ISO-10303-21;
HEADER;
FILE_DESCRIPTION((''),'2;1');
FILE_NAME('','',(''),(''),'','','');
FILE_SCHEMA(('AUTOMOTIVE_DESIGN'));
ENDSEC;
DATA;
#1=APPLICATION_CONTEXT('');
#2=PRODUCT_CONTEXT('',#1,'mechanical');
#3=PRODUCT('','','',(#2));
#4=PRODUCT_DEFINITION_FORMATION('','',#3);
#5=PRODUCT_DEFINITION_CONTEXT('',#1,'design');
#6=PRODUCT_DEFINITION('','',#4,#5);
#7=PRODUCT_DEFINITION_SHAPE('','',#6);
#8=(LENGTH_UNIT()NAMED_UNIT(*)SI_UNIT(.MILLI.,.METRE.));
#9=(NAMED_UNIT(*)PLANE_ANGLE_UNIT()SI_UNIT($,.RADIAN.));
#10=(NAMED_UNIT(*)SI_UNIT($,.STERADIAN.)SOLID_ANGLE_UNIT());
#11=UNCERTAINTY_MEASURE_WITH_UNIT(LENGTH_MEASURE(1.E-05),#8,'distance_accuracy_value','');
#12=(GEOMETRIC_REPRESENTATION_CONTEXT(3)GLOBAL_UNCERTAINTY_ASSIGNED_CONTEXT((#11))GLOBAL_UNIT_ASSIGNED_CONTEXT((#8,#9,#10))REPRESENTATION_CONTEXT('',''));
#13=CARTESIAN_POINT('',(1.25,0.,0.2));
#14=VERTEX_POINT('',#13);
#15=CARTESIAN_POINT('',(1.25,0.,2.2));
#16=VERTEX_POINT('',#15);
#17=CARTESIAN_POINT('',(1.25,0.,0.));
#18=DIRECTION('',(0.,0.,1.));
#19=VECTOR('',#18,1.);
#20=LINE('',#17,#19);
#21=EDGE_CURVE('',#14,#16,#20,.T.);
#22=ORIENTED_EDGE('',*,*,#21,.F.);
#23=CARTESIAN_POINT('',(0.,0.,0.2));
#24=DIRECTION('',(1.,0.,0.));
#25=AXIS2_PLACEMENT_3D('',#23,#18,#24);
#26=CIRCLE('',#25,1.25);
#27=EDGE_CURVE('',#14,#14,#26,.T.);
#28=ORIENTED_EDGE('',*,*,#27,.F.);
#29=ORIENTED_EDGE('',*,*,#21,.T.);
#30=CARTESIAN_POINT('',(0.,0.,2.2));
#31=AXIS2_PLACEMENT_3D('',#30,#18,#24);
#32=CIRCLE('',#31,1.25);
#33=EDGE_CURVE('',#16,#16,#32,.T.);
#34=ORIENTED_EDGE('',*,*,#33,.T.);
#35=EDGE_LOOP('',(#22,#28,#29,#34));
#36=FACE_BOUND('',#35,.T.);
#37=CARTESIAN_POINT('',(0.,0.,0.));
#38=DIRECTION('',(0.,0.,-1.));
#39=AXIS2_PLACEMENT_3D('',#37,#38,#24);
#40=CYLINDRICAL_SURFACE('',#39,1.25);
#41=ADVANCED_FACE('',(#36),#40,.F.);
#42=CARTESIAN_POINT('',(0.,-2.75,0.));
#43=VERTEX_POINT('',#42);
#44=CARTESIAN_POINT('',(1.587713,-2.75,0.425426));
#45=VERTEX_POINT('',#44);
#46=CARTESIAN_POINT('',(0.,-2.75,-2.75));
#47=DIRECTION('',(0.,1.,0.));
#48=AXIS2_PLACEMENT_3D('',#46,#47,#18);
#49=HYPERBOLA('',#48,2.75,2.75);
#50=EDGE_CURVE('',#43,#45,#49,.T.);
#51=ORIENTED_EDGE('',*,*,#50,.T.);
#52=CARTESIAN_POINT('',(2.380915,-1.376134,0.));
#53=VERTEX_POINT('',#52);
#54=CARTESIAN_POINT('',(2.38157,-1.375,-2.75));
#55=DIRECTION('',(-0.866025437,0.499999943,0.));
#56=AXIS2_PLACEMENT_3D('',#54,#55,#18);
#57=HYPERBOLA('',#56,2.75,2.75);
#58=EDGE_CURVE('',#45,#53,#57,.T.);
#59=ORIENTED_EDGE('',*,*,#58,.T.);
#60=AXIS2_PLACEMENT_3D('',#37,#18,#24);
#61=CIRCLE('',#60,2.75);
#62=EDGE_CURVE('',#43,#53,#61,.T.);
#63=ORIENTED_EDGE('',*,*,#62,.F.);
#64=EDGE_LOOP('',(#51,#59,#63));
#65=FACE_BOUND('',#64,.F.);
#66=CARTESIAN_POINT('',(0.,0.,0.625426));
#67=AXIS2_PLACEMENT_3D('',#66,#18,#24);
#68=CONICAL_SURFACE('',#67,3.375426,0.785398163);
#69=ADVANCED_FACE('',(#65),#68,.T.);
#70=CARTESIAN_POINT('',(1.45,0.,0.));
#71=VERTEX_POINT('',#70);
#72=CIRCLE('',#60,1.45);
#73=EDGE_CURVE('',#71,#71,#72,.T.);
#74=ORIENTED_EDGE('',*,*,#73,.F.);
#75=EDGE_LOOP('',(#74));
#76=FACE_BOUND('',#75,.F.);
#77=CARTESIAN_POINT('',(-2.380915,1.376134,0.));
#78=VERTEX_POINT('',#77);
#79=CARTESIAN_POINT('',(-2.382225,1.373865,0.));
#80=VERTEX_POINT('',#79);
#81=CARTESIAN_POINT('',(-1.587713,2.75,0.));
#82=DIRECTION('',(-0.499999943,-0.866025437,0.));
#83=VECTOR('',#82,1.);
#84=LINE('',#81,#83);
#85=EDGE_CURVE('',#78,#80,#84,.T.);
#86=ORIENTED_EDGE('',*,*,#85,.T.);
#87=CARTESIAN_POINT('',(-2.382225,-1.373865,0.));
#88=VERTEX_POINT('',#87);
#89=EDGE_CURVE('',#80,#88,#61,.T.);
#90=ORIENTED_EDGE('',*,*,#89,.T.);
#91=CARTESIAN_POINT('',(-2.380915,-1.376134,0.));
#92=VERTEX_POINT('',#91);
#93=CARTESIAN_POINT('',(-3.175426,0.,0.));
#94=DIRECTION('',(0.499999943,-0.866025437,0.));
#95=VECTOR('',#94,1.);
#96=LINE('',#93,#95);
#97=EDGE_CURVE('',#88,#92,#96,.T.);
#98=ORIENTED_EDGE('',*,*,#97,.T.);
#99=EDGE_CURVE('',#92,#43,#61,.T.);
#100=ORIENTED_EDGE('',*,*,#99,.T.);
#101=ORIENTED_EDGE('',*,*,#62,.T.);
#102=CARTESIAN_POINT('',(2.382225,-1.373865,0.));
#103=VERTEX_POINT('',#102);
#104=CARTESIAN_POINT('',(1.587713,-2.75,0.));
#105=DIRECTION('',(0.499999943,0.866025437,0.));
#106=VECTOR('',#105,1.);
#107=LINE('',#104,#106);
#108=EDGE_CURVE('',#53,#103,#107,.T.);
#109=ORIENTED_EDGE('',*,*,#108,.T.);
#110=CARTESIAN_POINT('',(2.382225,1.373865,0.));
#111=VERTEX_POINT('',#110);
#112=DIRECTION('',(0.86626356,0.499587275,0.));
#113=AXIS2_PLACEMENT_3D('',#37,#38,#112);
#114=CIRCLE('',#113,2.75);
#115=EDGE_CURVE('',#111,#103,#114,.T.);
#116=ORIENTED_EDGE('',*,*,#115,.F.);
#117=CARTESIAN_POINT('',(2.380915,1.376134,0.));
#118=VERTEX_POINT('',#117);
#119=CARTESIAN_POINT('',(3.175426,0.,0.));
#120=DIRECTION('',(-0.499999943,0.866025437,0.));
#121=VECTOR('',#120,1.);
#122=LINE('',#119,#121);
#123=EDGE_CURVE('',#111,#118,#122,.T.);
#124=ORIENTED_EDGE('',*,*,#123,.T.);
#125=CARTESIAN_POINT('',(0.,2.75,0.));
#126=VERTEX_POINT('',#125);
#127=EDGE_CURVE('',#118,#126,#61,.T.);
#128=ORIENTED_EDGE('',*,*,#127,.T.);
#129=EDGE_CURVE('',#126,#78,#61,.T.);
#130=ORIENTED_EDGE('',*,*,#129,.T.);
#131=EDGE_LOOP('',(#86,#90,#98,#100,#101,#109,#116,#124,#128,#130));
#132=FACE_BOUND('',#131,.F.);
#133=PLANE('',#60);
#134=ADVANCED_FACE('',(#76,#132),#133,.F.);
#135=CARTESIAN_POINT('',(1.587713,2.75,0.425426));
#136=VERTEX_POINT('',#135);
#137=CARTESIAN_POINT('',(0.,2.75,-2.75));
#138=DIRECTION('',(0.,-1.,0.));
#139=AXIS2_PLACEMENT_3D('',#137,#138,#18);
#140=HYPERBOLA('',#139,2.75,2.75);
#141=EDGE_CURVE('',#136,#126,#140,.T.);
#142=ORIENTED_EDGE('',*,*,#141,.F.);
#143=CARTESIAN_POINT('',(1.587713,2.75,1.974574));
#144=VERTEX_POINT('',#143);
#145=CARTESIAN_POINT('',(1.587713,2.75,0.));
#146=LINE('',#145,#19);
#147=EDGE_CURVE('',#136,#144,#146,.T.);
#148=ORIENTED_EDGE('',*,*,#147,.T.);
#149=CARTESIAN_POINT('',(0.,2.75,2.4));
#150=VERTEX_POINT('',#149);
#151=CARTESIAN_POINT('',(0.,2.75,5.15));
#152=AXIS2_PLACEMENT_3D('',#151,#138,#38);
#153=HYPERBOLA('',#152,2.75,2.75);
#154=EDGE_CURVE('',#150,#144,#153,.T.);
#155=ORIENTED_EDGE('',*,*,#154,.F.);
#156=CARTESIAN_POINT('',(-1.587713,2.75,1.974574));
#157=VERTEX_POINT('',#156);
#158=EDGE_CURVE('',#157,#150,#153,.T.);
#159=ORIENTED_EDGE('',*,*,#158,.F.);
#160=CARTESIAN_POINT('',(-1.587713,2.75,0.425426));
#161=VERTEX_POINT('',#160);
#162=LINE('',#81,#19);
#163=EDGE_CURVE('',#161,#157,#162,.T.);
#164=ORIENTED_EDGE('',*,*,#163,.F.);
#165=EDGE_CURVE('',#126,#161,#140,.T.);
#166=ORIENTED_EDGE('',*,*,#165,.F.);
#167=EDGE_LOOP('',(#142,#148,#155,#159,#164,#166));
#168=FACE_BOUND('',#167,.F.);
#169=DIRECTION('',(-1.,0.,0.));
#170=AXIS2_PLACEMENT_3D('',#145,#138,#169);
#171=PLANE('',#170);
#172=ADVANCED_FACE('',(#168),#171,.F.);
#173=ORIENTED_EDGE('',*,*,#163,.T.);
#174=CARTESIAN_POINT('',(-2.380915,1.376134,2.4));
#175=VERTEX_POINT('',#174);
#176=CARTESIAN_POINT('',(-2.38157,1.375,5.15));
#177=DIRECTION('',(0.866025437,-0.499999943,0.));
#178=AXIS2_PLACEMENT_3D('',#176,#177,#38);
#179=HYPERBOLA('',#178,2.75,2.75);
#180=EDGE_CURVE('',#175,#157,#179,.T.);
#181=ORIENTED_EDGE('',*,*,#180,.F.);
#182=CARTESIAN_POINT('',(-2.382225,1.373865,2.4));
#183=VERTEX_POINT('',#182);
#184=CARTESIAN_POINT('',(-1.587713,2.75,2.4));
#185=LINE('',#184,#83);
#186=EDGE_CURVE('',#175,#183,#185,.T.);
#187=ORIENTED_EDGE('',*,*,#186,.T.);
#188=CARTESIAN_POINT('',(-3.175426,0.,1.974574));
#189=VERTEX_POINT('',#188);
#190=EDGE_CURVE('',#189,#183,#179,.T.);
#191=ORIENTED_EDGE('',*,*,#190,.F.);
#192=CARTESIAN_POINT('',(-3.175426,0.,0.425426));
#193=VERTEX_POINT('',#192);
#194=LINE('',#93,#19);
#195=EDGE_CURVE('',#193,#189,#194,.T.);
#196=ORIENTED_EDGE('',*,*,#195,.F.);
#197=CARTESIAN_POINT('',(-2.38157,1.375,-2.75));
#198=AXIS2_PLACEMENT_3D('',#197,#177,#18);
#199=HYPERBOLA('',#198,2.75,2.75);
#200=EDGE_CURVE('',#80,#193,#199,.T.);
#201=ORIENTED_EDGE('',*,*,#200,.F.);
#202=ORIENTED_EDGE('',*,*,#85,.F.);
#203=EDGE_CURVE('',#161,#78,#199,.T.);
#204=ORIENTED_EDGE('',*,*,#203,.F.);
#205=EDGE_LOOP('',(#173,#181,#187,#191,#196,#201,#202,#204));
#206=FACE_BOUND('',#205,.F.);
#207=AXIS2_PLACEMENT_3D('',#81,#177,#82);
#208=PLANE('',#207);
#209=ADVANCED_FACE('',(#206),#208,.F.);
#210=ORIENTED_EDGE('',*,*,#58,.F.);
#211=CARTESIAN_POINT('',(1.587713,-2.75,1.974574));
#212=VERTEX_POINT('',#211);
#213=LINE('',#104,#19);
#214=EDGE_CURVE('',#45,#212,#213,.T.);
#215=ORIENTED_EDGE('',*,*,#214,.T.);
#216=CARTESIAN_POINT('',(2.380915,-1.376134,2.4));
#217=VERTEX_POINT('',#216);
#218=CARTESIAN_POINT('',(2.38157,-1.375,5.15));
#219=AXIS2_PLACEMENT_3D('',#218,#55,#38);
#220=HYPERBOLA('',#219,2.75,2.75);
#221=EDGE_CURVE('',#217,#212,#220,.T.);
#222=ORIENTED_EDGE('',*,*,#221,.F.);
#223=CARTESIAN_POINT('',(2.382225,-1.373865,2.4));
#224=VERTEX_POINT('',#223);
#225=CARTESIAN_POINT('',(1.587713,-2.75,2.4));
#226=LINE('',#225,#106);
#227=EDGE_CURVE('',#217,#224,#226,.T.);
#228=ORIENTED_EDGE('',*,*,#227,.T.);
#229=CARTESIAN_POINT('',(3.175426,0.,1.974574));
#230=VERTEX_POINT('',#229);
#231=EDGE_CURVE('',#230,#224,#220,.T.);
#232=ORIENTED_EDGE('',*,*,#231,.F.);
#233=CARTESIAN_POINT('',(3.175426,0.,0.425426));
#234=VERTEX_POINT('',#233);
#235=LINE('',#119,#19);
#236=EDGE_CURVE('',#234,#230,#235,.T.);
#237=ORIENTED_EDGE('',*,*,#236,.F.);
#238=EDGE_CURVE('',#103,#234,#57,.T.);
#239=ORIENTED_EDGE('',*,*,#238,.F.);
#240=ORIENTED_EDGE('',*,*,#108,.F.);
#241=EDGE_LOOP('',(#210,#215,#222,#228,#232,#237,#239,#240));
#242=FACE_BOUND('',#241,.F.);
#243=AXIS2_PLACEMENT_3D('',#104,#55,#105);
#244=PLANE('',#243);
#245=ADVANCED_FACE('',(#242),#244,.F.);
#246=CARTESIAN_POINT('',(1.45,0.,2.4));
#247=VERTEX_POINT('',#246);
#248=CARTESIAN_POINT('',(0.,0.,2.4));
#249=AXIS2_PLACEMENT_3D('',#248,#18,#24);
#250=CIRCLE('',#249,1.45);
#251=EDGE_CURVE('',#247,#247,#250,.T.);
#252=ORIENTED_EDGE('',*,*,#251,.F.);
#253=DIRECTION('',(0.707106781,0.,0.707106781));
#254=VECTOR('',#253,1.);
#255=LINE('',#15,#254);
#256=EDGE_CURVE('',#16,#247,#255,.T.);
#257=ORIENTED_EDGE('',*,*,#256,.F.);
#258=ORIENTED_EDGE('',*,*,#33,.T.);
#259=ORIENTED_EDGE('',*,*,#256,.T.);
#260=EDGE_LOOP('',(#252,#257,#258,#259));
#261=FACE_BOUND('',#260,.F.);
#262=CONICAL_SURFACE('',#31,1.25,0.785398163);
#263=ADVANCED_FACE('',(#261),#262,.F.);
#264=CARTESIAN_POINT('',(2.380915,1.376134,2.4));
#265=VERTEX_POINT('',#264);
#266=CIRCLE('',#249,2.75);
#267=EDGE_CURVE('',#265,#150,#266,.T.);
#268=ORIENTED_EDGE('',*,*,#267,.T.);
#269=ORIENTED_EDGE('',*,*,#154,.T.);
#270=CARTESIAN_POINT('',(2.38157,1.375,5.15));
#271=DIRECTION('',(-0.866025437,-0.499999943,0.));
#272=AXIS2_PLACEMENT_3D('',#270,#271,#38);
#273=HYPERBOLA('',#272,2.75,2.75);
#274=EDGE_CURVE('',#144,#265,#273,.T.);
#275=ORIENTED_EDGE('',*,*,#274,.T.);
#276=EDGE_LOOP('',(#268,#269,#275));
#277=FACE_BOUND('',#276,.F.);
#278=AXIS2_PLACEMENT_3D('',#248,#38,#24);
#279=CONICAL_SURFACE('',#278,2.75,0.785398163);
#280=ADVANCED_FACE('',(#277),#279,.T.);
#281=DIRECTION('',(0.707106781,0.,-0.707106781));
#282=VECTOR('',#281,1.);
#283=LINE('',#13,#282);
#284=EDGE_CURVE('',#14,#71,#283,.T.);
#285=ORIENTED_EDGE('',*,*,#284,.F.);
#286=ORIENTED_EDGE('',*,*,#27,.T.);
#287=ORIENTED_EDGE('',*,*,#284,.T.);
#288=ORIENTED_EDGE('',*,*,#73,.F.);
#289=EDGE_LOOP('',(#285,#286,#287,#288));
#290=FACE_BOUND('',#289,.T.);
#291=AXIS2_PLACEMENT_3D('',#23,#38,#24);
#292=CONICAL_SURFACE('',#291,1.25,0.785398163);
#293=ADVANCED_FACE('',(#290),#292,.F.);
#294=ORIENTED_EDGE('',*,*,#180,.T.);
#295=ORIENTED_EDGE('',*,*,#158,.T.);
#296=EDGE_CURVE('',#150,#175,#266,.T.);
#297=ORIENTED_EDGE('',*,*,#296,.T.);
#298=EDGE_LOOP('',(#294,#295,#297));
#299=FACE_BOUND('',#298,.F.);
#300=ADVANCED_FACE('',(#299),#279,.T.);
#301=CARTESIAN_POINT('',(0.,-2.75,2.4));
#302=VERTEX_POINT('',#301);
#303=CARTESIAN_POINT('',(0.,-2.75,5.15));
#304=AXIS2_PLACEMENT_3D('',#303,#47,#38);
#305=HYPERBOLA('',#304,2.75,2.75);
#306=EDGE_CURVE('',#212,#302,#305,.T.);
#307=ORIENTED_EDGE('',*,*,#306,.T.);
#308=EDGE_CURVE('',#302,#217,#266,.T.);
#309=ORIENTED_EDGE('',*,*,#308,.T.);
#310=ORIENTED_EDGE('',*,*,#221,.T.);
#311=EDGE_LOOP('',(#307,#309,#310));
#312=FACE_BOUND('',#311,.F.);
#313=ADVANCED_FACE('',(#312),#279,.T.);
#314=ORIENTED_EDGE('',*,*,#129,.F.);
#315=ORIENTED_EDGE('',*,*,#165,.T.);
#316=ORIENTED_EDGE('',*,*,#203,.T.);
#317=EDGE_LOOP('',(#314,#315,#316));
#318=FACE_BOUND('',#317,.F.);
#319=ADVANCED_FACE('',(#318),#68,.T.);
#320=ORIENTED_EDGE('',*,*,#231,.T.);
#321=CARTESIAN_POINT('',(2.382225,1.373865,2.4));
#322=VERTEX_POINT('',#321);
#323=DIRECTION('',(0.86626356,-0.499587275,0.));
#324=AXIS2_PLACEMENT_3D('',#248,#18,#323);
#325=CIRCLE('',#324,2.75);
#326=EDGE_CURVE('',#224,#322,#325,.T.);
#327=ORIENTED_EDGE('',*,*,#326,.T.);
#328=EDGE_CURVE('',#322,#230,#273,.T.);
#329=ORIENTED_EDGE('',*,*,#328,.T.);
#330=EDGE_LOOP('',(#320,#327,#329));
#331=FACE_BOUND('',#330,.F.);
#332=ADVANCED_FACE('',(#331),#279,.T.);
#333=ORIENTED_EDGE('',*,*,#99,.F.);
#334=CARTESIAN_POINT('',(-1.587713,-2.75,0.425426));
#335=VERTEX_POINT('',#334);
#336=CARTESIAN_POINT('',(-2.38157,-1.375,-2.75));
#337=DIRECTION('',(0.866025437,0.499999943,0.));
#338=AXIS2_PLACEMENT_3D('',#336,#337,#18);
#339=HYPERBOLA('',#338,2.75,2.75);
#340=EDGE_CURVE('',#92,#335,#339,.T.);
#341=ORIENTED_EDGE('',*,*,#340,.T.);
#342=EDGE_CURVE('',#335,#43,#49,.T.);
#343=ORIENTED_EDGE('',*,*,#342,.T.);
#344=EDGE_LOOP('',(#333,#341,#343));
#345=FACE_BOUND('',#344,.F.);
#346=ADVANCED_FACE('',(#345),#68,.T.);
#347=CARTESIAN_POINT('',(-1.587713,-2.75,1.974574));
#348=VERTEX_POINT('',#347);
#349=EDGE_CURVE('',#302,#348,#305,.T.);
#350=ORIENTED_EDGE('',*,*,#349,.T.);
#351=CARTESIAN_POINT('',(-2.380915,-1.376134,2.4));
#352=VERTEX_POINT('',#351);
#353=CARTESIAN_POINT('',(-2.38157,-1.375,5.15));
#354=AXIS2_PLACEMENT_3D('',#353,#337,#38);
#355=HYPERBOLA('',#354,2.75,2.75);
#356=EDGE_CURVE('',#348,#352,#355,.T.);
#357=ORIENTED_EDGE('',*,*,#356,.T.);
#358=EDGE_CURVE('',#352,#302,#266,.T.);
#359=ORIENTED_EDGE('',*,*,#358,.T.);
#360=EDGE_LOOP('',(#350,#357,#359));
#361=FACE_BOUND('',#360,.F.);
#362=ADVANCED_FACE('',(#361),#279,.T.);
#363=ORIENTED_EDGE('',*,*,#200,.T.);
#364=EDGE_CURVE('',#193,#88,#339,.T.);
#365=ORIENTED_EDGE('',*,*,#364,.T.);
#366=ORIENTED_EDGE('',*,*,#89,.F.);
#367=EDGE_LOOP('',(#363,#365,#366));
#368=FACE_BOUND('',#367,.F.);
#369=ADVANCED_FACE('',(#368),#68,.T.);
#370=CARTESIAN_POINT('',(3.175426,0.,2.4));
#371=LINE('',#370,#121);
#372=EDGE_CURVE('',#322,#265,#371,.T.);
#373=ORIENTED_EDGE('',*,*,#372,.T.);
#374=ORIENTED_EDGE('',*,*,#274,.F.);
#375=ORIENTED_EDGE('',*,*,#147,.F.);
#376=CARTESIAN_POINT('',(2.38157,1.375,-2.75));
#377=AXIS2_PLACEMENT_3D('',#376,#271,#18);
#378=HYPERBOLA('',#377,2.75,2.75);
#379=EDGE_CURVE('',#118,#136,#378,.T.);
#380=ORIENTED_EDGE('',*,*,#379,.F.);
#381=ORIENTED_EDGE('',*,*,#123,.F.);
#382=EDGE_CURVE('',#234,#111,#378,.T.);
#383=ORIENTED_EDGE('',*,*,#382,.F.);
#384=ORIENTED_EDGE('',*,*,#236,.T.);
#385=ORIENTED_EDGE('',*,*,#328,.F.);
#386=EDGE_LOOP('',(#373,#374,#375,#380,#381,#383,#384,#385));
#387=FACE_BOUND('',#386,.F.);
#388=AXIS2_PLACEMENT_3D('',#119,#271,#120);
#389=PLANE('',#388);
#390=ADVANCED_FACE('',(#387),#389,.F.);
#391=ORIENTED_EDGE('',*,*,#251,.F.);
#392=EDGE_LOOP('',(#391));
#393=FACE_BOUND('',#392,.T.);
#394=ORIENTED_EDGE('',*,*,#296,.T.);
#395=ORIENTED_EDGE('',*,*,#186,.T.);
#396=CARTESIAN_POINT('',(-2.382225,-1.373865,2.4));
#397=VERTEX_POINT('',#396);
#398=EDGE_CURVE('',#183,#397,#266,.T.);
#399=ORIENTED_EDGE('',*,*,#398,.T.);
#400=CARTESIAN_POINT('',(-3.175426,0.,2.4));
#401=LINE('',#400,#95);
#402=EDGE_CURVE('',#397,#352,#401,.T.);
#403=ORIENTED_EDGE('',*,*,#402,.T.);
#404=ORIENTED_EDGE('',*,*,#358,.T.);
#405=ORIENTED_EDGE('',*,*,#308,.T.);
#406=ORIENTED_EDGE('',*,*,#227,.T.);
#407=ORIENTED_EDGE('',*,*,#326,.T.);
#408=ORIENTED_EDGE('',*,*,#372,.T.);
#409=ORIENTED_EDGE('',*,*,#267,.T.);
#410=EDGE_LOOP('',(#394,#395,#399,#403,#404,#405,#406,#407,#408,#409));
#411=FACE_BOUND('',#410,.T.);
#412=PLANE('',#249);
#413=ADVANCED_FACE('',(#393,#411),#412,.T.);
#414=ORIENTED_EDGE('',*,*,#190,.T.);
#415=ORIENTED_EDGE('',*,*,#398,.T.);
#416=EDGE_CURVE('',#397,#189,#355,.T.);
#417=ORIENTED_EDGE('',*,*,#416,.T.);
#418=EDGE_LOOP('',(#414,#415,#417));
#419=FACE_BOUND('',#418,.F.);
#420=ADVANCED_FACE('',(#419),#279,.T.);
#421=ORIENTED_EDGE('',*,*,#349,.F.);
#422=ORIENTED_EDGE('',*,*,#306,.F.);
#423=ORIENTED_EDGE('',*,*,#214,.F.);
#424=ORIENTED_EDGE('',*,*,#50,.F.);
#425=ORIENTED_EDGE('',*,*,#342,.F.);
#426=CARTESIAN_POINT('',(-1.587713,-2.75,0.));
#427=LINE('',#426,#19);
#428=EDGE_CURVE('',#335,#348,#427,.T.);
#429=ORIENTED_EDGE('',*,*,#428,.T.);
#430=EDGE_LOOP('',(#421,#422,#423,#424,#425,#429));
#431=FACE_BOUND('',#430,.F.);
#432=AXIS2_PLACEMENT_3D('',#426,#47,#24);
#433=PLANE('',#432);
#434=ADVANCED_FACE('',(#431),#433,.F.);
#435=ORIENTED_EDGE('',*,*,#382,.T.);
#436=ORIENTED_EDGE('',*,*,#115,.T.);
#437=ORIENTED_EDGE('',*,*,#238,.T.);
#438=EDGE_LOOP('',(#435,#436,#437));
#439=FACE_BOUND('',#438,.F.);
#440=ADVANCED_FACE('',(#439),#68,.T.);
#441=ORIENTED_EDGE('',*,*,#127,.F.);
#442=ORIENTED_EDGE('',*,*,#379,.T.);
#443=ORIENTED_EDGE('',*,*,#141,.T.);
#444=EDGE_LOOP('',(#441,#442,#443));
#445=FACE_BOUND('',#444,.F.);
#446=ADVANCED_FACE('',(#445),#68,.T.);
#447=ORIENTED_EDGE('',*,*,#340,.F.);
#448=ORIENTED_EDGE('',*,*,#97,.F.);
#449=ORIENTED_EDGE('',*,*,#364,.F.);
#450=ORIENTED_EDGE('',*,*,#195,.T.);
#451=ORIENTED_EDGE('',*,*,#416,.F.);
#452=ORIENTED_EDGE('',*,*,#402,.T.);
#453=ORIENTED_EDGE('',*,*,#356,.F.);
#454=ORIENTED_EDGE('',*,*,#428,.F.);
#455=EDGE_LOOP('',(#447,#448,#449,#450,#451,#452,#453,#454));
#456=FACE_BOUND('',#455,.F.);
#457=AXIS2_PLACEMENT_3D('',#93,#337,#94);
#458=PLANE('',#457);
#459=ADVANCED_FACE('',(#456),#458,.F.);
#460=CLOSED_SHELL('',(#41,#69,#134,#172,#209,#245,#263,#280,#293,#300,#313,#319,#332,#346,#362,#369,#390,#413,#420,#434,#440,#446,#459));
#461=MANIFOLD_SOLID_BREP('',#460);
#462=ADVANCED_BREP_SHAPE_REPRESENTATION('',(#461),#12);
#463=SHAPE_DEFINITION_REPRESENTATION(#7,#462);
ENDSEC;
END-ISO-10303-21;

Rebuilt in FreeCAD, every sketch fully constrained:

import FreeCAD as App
import Part
import Sketcher
from FreeCAD import Vector
Q = App.Units.Quantity


def edges_at(feature, points):
    """Names of the edges that pass closest to the given points."""
    edges = feature.Shape.Edges
    near = lambda p: min(range(len(edges)), key=lambda i: edges[i].distToShape(Part.Vertex(*p))[0])
    return sorted({f"Edge{near(p) + 1}" for p in points})


def add_polygon(sketch, points):
    """Adds a closed chain of lines whose ends are joined by coincident constraints."""
    first, n = sketch.GeometryCount, len(points)
    for a, b in zip(points, points[1:] + points[:1]):
        sketch.addGeometry(Part.LineSegment(App.Vector(*a, 0), App.Vector(*b, 0)), False)
    for i in range(n):
        sketch.addConstraint(Sketcher.Constraint("Coincident", first + i, 2, first + (i + 1) % n, 1))

doc = App.newDocument("Part")
body = doc.addObject("PartDesign::Body", "Body")

# Sketch on XY plane
sketch1 = body.newObject("Sketcher::SketchObject", "Sketch")
sketch1.AttachmentSupport = (doc.getObject("XY_Plane"), [""])
sketch1.MapMode = "FlatFace"
add_polygon(sketch1, [(1.6, 2.8), (-1.6, 2.8), (-3.2, 0), (-1.6, -2.8), (1.6, -2.8), (3.2, 0)])  # lines 0-5
sketch1.addGeometry(Part.Circle(Vector(0, 0, 0), Vector(0, 0, 1), 1.2), False)  # 6
sketch1.addConstraint([
    Sketcher.Constraint("Horizontal", 0),
    Sketcher.Constraint("Horizontal", 3),
    Sketcher.Constraint("Coincident", 6, 3, -1, 1),
    Sketcher.Constraint("Symmetric", 0, 2, 3, 2, -1, 1),
    Sketcher.Constraint("Symmetric", 1, 2, 4, 2, -1, 1),
    Sketcher.Constraint("PointOnObject", 1, 2, -1),
    Sketcher.Constraint("Parallel", 2, 5),
    Sketcher.Constraint("Vertical", 0, 2, 2, 2),
    Sketcher.Constraint("Diameter", 6, Q("2.5 mm")),
    Sketcher.Constraint("Angle", 1, Q("-119.999996 deg")),
    Sketcher.Constraint("DistanceY", 2, 2, 0, 2, Q("5.5 mm")),
    Sketcher.Constraint("DistanceX", 0, 2, 0, 1, Q("3.175426 mm")),
])
pad1 = body.newObject("PartDesign::Pad", "Pad")
pad1.Profile = sketch1
pad1.Length = 2.4
doc.recompute()

chamfer = body.newObject("PartDesign::Chamfer", "Chamfer")
chamfer.Base = (pad1, edges_at(pad1, [(-1.25, 0, 2.4), (-1.25, 0, 0)]))
chamfer.Size = 0.2

# Sketch on XZ plane
sketch2 = body.newObject("Sketcher::SketchObject", "Sketch001")
sketch2.AttachmentSupport = (doc.getObject("XZ_Plane"), [""])
sketch2.MapMode = "FlatFace"
add_polygon(sketch2, [(3.38, 0.63), (2.75, 0), (3.74, 0), (3.74, 2.74), (2.75, 2.74), (2.75, 2.4), (3.38, 1.77)])  # lines 0-6
sketch2.addConstraint([
    Sketcher.Constraint("Horizontal", 1),
    Sketcher.Constraint("Vertical", 2),
    Sketcher.Constraint("Horizontal", 3),
    Sketcher.Constraint("Vertical", 4),
    Sketcher.Constraint("Vertical", 6),
    Sketcher.Constraint("PointOnObject", 0, 2, -1),
    Sketcher.Constraint("Perpendicular", 0, 5),
    Sketcher.Constraint("Vertical", 0, 2, 3, 2),
    Sketcher.Constraint("Equal", 0, 5),
    Sketcher.Constraint("DistanceY", -1, 1, 4, 2, Q("2.4 mm")),
    Sketcher.Constraint("DistanceX", -1, 1, 0, 2, Q("2.75 mm")),
    Sketcher.Constraint("DistanceX", 1, 1, 1, 2, Q("0.988599 mm")),
    Sketcher.Constraint("DistanceY", 2, 1, 2, 2, Q("2.737111 mm")),
    Sketcher.Constraint("DistanceY", 6, 2, 6, 1, Q("1.149148 mm")),
])
groove = body.newObject("PartDesign::Groove", "Groove")
groove.Profile = sketch2
groove.ReferenceAxis = (sketch2, ["V_Axis"])
groove.Angle = 360

doc.recompute()
